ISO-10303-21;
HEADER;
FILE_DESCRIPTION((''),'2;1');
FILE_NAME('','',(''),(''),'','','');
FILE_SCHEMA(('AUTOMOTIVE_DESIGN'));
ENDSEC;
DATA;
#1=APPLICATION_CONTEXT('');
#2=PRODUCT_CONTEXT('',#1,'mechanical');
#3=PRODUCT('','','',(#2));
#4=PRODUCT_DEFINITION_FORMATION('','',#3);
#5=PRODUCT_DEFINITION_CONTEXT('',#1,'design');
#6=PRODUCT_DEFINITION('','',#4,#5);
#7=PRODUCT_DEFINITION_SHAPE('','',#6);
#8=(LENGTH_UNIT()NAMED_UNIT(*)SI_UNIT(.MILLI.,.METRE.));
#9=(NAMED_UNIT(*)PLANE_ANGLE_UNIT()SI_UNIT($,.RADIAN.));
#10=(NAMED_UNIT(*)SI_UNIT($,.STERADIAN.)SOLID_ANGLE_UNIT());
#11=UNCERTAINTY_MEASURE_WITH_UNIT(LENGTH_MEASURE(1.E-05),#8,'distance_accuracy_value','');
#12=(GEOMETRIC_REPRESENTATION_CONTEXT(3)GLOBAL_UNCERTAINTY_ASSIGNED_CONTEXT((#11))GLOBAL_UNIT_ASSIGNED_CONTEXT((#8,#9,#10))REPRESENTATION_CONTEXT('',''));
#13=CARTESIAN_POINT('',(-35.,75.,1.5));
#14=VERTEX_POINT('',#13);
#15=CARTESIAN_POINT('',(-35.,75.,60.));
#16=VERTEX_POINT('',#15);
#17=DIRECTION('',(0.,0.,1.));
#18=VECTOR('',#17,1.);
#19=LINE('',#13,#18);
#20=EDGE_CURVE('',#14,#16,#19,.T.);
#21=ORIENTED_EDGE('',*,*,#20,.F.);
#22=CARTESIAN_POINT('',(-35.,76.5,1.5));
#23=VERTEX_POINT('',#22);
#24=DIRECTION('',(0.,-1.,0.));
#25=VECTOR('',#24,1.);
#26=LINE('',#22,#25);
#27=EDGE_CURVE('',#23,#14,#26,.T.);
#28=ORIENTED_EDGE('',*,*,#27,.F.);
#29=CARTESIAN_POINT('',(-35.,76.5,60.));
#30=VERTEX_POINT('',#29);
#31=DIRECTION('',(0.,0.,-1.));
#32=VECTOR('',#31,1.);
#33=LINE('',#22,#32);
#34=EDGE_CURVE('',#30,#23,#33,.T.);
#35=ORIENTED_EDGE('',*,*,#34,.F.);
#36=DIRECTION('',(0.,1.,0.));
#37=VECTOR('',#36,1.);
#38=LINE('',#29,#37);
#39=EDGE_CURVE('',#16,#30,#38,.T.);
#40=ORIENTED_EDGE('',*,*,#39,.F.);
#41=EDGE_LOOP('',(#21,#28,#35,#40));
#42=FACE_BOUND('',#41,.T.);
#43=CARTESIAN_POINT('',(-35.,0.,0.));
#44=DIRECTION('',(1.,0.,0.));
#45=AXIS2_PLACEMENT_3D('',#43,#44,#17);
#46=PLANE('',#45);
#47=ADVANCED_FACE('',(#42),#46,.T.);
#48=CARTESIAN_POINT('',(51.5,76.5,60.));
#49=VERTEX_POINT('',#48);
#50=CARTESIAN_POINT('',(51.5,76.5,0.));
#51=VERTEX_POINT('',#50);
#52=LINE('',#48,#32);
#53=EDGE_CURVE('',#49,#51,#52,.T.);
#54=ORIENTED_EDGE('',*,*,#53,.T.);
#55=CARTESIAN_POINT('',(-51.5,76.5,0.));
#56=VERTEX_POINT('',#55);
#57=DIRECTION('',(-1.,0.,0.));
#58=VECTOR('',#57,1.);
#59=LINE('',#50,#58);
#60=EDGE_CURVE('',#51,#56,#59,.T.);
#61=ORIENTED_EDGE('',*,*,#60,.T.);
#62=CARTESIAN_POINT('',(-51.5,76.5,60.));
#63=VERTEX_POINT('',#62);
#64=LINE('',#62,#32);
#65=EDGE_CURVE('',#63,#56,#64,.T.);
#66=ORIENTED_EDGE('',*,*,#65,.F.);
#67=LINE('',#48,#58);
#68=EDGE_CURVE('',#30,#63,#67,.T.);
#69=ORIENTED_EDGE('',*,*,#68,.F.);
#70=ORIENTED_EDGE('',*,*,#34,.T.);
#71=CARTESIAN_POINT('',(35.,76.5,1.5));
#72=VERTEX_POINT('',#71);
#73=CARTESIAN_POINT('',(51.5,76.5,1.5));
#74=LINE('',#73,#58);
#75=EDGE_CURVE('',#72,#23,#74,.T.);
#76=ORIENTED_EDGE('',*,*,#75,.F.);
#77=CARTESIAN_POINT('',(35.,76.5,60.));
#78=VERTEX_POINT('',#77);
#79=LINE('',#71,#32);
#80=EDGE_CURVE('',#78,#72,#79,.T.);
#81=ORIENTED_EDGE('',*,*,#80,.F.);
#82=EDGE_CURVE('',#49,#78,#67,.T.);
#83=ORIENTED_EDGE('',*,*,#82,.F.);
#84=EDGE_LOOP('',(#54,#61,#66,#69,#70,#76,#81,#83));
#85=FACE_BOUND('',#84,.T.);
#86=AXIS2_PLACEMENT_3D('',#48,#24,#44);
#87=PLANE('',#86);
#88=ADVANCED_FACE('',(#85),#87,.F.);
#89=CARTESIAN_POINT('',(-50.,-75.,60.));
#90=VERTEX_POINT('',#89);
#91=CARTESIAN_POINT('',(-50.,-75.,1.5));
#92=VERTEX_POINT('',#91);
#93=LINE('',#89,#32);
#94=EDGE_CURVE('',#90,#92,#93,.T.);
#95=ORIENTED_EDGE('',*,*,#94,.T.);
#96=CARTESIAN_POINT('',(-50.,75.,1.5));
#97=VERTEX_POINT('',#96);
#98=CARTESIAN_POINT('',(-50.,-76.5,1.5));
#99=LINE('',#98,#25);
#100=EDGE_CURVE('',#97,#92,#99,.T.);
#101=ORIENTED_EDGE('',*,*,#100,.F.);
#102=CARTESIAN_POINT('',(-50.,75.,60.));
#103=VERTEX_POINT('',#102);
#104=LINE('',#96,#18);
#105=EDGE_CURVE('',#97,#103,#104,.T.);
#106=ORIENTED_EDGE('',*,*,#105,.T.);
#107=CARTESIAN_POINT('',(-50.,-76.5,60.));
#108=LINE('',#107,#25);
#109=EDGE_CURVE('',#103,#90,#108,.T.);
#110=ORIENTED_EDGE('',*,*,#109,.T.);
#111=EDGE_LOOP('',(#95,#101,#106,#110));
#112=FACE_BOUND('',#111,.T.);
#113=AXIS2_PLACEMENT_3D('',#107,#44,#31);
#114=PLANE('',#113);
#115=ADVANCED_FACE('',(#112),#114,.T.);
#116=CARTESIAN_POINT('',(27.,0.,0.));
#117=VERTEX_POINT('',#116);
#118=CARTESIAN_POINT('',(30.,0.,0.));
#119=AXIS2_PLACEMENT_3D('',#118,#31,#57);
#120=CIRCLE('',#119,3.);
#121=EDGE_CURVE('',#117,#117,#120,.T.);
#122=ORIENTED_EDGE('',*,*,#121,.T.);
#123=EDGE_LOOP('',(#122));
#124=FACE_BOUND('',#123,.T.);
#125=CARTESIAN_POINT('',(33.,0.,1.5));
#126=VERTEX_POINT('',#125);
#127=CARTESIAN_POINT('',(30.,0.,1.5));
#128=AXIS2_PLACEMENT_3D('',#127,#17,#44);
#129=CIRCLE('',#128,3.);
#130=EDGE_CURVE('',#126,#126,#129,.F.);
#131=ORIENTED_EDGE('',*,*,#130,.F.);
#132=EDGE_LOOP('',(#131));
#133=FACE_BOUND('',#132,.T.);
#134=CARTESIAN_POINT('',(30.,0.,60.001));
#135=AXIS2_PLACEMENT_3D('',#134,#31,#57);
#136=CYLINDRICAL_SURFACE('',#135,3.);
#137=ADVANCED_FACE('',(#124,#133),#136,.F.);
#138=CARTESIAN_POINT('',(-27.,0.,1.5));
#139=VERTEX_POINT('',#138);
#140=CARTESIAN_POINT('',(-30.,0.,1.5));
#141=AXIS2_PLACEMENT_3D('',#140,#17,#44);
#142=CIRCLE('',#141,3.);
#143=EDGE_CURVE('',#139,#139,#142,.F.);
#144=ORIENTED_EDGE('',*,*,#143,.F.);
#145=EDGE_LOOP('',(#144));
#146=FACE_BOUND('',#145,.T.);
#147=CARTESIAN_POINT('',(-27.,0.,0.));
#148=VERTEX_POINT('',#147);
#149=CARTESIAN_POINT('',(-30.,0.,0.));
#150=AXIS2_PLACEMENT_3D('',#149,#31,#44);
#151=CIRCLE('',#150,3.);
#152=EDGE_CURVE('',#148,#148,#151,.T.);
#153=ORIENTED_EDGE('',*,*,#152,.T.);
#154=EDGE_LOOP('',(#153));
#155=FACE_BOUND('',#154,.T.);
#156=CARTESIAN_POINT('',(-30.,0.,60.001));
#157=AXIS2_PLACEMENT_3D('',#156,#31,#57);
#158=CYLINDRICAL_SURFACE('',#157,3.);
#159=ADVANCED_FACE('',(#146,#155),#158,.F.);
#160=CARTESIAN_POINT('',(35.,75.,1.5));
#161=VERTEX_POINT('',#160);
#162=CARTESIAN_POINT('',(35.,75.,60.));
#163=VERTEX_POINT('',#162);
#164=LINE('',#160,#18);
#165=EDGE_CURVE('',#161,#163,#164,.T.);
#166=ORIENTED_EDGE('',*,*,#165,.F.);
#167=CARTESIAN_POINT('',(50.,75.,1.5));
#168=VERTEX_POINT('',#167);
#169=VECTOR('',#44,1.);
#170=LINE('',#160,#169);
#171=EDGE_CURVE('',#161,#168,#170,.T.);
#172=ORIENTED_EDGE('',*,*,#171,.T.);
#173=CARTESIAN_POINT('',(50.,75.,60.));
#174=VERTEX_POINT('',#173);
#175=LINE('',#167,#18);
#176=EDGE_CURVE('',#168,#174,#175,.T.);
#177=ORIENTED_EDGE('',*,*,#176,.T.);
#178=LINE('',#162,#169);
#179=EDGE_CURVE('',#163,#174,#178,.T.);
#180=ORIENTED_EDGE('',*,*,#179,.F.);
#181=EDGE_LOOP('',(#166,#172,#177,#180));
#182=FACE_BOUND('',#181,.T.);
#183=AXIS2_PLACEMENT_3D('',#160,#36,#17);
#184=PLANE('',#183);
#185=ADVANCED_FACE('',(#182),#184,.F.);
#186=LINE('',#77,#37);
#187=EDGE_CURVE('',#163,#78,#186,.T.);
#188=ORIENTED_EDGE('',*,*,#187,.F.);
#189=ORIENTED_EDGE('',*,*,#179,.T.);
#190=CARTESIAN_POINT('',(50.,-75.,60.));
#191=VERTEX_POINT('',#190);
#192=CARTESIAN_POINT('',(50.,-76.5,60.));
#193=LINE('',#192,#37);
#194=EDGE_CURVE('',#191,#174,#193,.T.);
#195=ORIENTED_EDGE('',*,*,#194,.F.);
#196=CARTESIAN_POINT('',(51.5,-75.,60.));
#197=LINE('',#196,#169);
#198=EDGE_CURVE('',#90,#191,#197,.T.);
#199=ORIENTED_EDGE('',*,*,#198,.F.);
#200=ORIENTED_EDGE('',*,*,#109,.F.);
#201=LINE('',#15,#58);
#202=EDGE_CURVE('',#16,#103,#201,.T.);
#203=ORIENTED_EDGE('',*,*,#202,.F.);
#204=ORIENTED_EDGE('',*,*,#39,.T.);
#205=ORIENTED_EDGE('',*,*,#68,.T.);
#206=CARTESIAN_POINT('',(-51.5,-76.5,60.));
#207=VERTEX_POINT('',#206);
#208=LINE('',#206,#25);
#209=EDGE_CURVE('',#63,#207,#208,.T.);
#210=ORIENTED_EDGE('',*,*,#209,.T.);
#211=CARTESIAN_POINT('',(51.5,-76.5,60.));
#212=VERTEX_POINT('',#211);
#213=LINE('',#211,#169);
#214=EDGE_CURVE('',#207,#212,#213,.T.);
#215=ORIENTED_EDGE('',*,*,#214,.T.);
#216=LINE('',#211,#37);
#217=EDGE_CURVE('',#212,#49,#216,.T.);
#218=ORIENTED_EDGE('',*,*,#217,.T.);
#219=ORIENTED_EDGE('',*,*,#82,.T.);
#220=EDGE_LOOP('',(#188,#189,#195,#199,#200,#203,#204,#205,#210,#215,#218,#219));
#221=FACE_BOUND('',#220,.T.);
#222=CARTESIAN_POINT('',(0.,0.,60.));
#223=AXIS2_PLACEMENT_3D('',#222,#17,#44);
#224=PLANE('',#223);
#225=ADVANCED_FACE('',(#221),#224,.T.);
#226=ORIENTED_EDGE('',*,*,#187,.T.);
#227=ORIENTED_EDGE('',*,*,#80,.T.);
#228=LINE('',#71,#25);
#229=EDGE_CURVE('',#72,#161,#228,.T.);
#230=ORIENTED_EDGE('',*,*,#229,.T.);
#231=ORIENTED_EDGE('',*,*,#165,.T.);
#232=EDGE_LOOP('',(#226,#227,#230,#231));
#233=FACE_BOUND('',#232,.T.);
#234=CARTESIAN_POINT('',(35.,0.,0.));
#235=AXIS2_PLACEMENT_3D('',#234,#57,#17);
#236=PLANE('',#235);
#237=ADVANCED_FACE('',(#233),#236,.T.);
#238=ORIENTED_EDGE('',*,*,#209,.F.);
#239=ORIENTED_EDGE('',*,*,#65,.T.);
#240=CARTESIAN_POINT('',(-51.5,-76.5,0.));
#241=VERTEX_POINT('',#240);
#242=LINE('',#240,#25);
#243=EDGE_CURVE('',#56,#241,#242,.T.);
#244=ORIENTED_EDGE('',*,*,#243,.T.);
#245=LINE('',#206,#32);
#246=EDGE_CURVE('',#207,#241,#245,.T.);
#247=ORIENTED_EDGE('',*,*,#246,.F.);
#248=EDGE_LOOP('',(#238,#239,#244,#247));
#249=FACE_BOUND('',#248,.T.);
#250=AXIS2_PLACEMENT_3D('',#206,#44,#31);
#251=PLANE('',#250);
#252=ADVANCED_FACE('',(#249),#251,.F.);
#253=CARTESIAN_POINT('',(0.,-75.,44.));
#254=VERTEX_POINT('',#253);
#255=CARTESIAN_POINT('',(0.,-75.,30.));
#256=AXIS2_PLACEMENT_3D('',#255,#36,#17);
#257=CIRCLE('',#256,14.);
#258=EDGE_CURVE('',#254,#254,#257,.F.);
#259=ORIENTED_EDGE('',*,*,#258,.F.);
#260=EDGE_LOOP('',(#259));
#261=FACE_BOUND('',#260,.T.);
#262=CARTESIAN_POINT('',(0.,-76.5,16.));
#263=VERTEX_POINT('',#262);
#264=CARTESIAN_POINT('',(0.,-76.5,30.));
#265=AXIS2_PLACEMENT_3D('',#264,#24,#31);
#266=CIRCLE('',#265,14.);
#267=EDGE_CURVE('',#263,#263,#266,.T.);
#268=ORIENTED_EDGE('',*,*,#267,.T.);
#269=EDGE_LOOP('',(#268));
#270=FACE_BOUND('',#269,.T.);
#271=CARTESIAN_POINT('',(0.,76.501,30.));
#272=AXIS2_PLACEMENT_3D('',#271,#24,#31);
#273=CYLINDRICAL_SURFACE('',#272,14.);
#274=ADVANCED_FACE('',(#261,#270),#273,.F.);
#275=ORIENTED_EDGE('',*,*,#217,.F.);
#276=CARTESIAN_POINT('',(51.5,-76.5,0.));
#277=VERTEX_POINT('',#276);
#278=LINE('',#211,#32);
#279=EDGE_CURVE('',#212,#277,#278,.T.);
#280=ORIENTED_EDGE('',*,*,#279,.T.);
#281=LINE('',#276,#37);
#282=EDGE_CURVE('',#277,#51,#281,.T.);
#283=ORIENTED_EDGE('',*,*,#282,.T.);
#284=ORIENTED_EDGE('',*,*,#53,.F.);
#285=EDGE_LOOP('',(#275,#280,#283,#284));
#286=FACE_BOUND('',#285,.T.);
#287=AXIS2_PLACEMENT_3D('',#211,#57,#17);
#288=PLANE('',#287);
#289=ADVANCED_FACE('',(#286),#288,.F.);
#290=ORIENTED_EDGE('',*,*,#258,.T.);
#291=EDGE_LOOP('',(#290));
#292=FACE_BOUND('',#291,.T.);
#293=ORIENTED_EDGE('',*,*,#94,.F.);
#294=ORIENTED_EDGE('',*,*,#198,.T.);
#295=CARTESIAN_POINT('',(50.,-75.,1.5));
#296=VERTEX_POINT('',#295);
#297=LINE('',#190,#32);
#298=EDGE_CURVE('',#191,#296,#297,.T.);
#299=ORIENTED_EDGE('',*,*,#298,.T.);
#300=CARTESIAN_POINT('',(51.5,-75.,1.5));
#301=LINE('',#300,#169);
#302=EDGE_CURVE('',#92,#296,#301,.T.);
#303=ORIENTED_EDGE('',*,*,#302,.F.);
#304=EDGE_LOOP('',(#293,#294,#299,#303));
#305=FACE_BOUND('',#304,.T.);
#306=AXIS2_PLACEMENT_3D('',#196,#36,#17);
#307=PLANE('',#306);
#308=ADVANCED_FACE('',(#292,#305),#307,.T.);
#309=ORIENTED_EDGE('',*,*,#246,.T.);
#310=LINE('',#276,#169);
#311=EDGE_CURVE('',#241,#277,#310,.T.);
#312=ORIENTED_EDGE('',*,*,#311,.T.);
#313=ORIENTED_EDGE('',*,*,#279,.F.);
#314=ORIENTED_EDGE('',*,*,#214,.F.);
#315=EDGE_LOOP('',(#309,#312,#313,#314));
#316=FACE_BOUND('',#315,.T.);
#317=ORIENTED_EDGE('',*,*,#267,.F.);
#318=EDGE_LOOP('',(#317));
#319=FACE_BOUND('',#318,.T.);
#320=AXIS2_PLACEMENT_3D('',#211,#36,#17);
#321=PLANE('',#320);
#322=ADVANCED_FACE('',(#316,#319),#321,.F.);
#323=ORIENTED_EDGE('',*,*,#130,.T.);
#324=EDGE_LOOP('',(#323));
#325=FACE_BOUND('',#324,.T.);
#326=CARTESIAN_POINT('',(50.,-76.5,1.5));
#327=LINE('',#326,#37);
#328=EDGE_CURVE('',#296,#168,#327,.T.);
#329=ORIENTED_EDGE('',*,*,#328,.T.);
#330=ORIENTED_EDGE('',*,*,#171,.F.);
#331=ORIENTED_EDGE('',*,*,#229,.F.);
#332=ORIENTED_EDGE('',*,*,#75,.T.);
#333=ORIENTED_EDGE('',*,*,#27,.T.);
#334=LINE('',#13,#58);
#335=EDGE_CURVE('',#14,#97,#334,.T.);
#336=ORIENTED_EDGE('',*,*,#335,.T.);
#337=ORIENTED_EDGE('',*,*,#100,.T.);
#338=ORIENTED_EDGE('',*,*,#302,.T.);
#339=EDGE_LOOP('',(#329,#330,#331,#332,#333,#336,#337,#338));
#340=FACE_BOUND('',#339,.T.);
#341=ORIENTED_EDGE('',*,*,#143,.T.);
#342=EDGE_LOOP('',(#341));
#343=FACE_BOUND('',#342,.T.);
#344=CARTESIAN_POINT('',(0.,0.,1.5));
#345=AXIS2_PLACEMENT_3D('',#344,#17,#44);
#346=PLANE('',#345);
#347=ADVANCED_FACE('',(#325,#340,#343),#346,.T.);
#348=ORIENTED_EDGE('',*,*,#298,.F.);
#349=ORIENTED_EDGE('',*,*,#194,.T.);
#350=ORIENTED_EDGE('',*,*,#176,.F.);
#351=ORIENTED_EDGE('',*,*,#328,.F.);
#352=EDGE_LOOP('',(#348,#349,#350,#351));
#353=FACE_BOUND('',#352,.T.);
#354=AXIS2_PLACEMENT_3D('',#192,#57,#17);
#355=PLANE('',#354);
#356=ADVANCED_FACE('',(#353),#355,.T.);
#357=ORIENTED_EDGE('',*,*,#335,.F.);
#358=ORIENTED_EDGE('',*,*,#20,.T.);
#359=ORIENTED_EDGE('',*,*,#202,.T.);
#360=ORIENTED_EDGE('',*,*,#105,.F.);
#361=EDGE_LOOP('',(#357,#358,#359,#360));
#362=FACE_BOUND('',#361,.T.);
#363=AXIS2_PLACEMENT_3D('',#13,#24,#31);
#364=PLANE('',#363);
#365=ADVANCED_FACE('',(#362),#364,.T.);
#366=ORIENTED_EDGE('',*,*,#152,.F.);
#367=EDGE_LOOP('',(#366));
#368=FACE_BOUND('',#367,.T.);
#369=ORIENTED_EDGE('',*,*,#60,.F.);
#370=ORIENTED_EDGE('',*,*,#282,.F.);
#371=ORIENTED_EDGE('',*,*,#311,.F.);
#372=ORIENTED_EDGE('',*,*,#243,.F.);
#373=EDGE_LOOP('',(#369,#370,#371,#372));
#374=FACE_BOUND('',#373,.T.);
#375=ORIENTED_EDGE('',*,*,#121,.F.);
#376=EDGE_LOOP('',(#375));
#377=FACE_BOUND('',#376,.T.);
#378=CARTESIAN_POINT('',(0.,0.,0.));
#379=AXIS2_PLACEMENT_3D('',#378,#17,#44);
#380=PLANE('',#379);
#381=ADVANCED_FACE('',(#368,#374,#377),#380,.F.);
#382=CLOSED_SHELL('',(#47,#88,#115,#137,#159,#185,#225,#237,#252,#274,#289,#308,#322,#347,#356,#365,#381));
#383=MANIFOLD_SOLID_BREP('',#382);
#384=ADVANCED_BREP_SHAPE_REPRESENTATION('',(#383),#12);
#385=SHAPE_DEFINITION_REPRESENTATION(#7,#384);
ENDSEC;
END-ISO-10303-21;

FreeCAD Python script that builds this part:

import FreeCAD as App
import Part
import Sketcher

V = App.Vector


def faces_at(feature, points):
    """Names of the faces that lie closest to the given points."""
    faces = feature.Shape.Faces
    near = lambda p: min(range(len(faces)), key=lambda i: faces[i].distToShape(Part.Vertex(*p))[0])
    return sorted({f"Face{near(p) + 1}" for p in points})


def add_polygon(sketch, points):
    """Adds a closed chain of lines whose ends are joined by coincident constraints."""
    first, n = sketch.GeometryCount, len(points)
    for a, b in zip(points, points[1:] + points[:1]):
        sketch.addGeometry(Part.LineSegment(App.Vector(*a, 0), App.Vector(*b, 0)), False)
    for i in range(n):
        sketch.addConstraint(Sketcher.Constraint("Coincident", first + i, 2, first + (i + 1) % n, 1))

doc = App.newDocument("Part")
body = doc.addObject("PartDesign::Body", "Body")

# Sketch on XY plane
sketch1 = body.newObject("Sketcher::SketchObject", "Sketch")
sketch1.AttachmentSupport = (doc.getObject("XY_Plane"), [""])
sketch1.MapMode = "FlatFace"
add_polygon(sketch1, [(-52, 76), (-52, -76), (52, -76), (52, 76)])  # lines 0-3
sketch1.addConstraint([
    Sketcher.Constraint("Vertical", 0),
    Sketcher.Constraint("Horizontal", 1),
    Sketcher.Constraint("Vertical", 2),
    Sketcher.Constraint("Horizontal", 3),
    Sketcher.Constraint("Symmetric", 0, 2, 2, 2, -1, 1),
    Sketcher.Constraint("DistanceX", 1, 1, 1, 2, 103.0),
    Sketcher.Constraint("DistanceY", 0, 2, 0, 1, 153.0),
])
pad1 = body.newObject("PartDesign::Pad", "Pad")
pad1.Profile = sketch1
pad1.Length = 60
doc.recompute()

thickness = body.newObject("PartDesign::Thickness", "Thickness")
thickness.Base = (pad1, faces_at(pad1, [(0, 0, 60), (0, 76.5, 30)]))
thickness.Value = 1.5
thickness.Reversed = True
thickness.Join = "Intersection"

# Sketch on XZ plane
sketch2 = body.newObject("Sketcher::SketchObject", "Sketch001")
sketch2.AttachmentSupport = (doc.getObject("XZ_Plane"), [""])
sketch2.MapMode = "FlatFace"
sketch2.AttachmentOffset = App.Placement(V(0, 0, 76.5), App.Rotation())
sketch2.addGeometry(Part.Circle(V(0, 30, 0), V(0, 0, 1), 14), False)
sketch2.addConstraint([
    Sketcher.Constraint("PointOnObject", 0, 3, -2),
    Sketcher.Constraint("Diameter", 0, 28.0),
    Sketcher.Constraint("DistanceY", -1, 1, 0, 3, 30.0),
])
pocket1 = body.newObject("PartDesign::Pocket", "Pocket")
pocket1.Profile = sketch2
pocket1.Type = "UpToFirst"

# Sketch on YZ plane
sketch3 = body.newObject("Sketcher::SketchObject", "Sketch002")
sketch3.AttachmentSupport = (doc.getObject("YZ_Plane"), [""])
sketch3.MapMode = "FlatFace"
sketch3.AttachmentOffset = App.Placement(V(0, 0, 50), App.Rotation())
add_polygon(sketch3, [(76.5, 1.5), (75, 1.5), (75, 60), (76.5, 60)])  # lines 0-3
sketch3.addConstraint([
    Sketcher.Constraint("Horizontal", 0),
    Sketcher.Constraint("Vertical", 1),
    Sketcher.Constraint("Horizontal", 2),
    Sketcher.Constraint("Vertical", 3),
    Sketcher.Constraint("DistanceX", 0, 2, 0, 1, 1.5),
    Sketcher.Constraint("DistanceY", 1, 1, 1, 2, 58.5),
    Sketcher.Constraint("DistanceX", -1, 1, 0, 2, 75.0),
    Sketcher.Constraint("DistanceY", -1, 1, 1, 2, 60.0),
])
pad2 = body.newObject("PartDesign::Pad", "Pad001")
pad2.Profile = sketch3
pad2.Length = 15
pad2.Reversed = True
doc.recompute()

mirrored = body.newObject("PartDesign::Mirrored", "Mirrored")
mirrored.Originals = [pad2]
mirrored.MirrorPlane = (doc.getObject("YZ_Plane"), [""])
body.Tip = mirrored

# Sketch on XY plane
sketch4 = body.newObject("Sketcher::SketchObject", "Sketch003")
sketch4.AttachmentSupport = (doc.getObject("XY_Plane"), [""])
sketch4.MapMode = "FlatFace"
sketch4.addGeometry(Part.Circle(V(30, 0, 0), V(0, 0, 1), 3), False)
sketch4.addConstraint([
    Sketcher.Constraint("PointOnObject", 0, 3, -1),
    Sketcher.Constraint("Diameter", 0, 6.0),
    Sketcher.Constraint("DistanceX", -1, 1, 0, 3, 30.0),
])
pocket2 = body.newObject("PartDesign::Pocket", "Pocket001")
pocket2.Profile = sketch4
pocket2.Type = "UpToFirst"
pocket2.Reversed = True

# Sketch on XY plane
sketch5 = body.newObject("Sketcher::SketchObject", "Sketch004")
sketch5.AttachmentSupport = (doc.getObject("XY_Plane"), [""])
sketch5.MapMode = "FlatFace"
sketch5.addGeometry(Part.Circle(V(-30, 0, 0), V(0, 0, 1), 3), False)
sketch5.addConstraint([
    Sketcher.Constraint("PointOnObject", 0, 3, -1),
    Sketcher.Constraint("Diameter", 0, 6.0),
    Sketcher.Constraint("DistanceX", 0, 3, -1, 1, 30.0),
])
pocket3 = body.newObject("PartDesign::Pocket", "Pocket002")
pocket3.Profile = sketch5
pocket3.Type = "UpToFirst"
pocket3.Reversed = True

doc.recompute()
